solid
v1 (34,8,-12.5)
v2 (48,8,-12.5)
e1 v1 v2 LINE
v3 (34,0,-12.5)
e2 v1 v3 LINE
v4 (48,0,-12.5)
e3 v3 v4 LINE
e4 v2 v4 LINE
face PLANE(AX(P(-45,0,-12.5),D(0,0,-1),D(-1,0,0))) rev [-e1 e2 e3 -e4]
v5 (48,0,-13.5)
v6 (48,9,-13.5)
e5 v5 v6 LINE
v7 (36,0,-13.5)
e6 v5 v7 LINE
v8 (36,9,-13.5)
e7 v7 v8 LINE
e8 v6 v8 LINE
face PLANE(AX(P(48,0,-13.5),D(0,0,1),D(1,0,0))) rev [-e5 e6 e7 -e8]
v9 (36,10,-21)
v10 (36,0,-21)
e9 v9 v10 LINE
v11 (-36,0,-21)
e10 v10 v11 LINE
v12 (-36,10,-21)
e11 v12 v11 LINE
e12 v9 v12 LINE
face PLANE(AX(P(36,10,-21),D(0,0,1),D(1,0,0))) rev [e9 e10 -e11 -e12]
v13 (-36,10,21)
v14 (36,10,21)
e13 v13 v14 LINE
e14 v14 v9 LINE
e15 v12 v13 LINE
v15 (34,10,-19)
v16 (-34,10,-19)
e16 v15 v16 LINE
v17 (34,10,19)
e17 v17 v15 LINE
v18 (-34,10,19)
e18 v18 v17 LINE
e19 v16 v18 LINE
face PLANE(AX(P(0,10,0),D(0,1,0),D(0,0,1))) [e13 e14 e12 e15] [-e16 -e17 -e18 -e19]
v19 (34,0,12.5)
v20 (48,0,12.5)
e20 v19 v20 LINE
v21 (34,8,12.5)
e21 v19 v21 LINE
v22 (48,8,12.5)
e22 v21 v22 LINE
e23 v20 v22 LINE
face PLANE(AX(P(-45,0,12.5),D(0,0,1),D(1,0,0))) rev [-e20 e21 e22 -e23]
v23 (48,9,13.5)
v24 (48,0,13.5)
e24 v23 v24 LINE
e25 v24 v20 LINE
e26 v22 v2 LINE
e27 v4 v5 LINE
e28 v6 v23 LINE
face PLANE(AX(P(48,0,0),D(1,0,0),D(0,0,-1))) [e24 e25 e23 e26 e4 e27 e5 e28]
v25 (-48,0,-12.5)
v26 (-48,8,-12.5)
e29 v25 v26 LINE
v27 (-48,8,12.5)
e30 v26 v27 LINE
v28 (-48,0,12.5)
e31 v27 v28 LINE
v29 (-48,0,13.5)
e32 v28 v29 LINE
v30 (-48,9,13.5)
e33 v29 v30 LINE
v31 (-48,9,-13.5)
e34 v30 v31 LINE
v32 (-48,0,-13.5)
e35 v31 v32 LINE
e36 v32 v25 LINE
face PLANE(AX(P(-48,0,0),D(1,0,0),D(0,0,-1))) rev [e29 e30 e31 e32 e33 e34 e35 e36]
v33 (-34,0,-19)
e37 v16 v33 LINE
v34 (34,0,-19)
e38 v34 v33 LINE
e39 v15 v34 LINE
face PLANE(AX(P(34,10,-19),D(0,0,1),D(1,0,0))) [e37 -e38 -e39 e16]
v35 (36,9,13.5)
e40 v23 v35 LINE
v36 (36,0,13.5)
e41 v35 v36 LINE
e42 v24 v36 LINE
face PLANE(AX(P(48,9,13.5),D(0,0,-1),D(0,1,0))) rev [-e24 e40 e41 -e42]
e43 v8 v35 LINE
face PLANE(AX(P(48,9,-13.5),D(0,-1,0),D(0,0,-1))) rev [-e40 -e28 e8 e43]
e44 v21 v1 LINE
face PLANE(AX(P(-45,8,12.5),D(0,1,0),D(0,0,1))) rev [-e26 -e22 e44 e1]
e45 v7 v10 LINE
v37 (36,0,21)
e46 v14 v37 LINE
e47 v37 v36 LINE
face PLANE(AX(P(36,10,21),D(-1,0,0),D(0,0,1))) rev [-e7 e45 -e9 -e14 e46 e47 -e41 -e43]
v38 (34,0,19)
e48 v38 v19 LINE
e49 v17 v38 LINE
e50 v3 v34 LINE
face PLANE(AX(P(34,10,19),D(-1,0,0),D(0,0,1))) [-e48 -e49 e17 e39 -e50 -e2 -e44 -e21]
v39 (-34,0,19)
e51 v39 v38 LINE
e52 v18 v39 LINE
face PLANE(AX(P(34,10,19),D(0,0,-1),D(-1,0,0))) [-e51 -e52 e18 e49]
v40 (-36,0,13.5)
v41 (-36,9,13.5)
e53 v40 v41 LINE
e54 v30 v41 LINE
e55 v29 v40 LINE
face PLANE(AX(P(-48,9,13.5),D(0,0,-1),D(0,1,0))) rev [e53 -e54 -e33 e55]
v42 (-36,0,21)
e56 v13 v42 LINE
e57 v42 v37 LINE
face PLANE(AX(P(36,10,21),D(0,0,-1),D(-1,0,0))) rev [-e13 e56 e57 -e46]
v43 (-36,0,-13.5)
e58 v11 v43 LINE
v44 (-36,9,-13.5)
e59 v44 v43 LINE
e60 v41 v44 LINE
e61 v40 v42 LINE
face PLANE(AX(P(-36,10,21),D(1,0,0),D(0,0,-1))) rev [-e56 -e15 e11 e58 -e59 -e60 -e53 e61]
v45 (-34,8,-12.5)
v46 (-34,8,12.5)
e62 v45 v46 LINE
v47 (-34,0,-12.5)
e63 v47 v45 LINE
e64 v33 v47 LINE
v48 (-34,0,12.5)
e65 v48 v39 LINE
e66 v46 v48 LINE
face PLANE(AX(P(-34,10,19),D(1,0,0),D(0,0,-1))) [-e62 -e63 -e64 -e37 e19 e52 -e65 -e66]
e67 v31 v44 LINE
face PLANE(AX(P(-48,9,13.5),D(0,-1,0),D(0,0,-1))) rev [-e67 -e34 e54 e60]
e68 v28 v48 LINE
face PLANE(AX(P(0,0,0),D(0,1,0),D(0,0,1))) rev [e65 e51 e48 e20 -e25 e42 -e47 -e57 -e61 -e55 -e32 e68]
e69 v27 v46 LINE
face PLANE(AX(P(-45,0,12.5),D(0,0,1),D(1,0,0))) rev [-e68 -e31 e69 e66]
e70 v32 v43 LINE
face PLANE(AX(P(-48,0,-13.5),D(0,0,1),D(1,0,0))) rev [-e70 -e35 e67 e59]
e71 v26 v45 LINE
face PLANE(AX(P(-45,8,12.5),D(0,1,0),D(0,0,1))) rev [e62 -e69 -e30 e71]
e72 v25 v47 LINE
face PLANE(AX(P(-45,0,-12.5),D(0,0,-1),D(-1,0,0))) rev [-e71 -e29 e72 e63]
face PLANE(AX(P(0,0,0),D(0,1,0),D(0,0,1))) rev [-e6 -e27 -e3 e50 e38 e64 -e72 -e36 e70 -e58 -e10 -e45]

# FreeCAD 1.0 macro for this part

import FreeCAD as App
import Part
import Sketcher

V = App.Vector


def add_polygon(sketch, points):
    """Adds a closed chain of lines whose ends are joined by coincident constraints."""
    first, n = sketch.GeometryCount, len(points)
    for a, b in zip(points, points[1:] + points[:1]):
        sketch.addGeometry(Part.LineSegment(App.Vector(*a, 0), App.Vector(*b, 0)), False)
    for i in range(n):
        sketch.addConstraint(Sketcher.Constraint("Coincident", first + i, 2, first + (i + 1) % n, 1))

doc = App.newDocument("Part")
body = doc.addObject("PartDesign::Body", "Body")

sketch1 = body.newObject("Sketcher::SketchObject", "Sketch")
sketch1.AttachmentSupport = (doc.getObject("XZ_Plane"), [""])
sketch1.MapMode = "FlatFace"
add_polygon(sketch1, [(-36, -21), (-36, 21), (36, 21), (36, -21)])
add_polygon(sketch1, [(34, 19), (-34, 19), (-34, -19), (34, -19)])
sketch1.addConstraint([
    Sketcher.Constraint("Vertical", 0),
    Sketcher.Constraint("Horizontal", 1),
    Sketcher.Constraint("Vertical", 2),
    Sketcher.Constraint("Horizontal", 3),
    Sketcher.Constraint("Horizontal", 4),
    Sketcher.Constraint("Vertical", 5),
    Sketcher.Constraint("Horizontal", 6),
    Sketcher.Constraint("Vertical", 7),
    Sketcher.Constraint("Symmetric", 0, 2, 2, 2, -1, 1),
    Sketcher.Constraint("Symmetric", 4, 2, 6, 2, -1, 1),
    Sketcher.Constraint("DistanceX", 1, 1, 1, 2, 72.0),
    Sketcher.Constraint("DistanceX", 4, 2, 4, 1, 68.0),
    Sketcher.Constraint("DistanceY", 0, 1, 0, 2, 42.0),
    Sketcher.Constraint("DistanceY", 5, 2, 5, 1, 38.0),
])
pad1 = body.newObject("PartDesign::Pad", "Pad")
pad1.Profile = sketch1
pad1.Length = 10
pad1.Reversed = True

sketch2 = body.newObject("Sketcher::SketchObject", "Sketch001")
sketch2.AttachmentSupport = (doc.getObject("YZ_Plane"), [""])
sketch2.MapMode = "FlatFace"
sketch2.AttachmentOffset = App.Placement(V(0, 0, 36), App.Rotation())
add_polygon(sketch2, [(8, 12), (0, 12), (0, -12), (8, -12)])
sketch2.addConstraint([
    Sketcher.Constraint("Horizontal", 0),
    Sketcher.Constraint("Vertical", 1),
    Sketcher.Constraint("Horizontal", 2),
    Sketcher.Constraint("Vertical", 3),
    Sketcher.Constraint("Symmetric", 0, 2, 1, 2, -1, 1),
    Sketcher.Constraint("DistanceX", 0, 2, 0, 1, 8.0),
    Sketcher.Constraint("DistanceY", 1, 2, 1, 1, 25.0),
])
pocket1 = body.newObject("PartDesign::Pocket", "Pocket")
pocket1.Profile = sketch2
pocket1.Length = 81

sketch3 = body.newObject("Sketcher::SketchObject", "Sketch002")
sketch3.AttachmentSupport = (doc.getObject("YZ_Plane"), [""])
sketch3.MapMode = "FlatFace"
sketch3.AttachmentOffset = App.Placement(V(0, 0, 36), App.Rotation())
add_polygon(sketch3, [(8, -12.5), (0, -12.5), (0, -13.5), (9, -13.5), (9, 13.5), (0, 13.5), (0, 12.5), (8, 12.5)])
sketch3.addConstraint([
    Sketcher.Constraint("Horizontal", 0),
    Sketcher.Constraint("Vertical", 1),
    Sketcher.Constraint("Horizontal", 2),
    Sketcher.Constraint("Vertical", 3),
    Sketcher.Constraint("Horizontal", 4),
    Sketcher.Constraint("Vertical", 5),
    Sketcher.Constraint("Horizontal", 6),
    Sketcher.Constraint("Vertical", 7),
    Sketcher.Constraint("Symmetric", 1, 2, 4, 2, -1, 1),
    Sketcher.Constraint("Symmetric", 0, 2, 5, 2, -1),
    Sketcher.Constraint("DistanceX", 0, 2, 0, 1, 8.0),
    Sketcher.Constraint("DistanceX", 2, 1, 2, 2, 9.0),
    Sketcher.Constraint("DistanceY", 1, 2, 1, 1, 1.0),
    Sketcher.Constraint("DistanceY", 3, 1, 3, 2, 27.0),
])
pad2 = body.newObject("PartDesign::Pad", "Pad001")
pad2.Profile = sketch3
pad2.Length = 12

sketch4 = body.newObject("Sketcher::SketchObject", "Sketch003")
sketch4.AttachmentSupport = (doc.getObject("YZ_Plane"), [""])
sketch4.MapMode = "FlatFace"
sketch4.AttachmentOffset = App.Placement(V(0, 0, -36), App.Rotation())
add_polygon(sketch4, [(8, 12.5), (0, 12.5), (0, 13.5), (9, 13.5), (9, -13.5), (0, -13.5), (0, -12.5), (8, -12.5)])
sketch4.addConstraint([
    Sketcher.Constraint("Horizontal", 0),
    Sketcher.Constraint("Vertical", 1),
    Sketcher.Constraint("Horizontal", 2),
    Sketcher.Constraint("Vertical", 3),
    Sketcher.Constraint("Horizontal", 4),
    Sketcher.Constraint("Vertical", 5),
    Sketcher.Constraint("Horizontal", 6),
    Sketcher.Constraint("Vertical", 7),
    Sketcher.Constraint("Symmetric", 1, 2, 4, 2, -1, 1),
    Sketcher.Constraint("Symmetric", 0, 2, 5, 2, -1),
    Sketcher.Constraint("DistanceX", 0, 2, 0, 1, 8.0),
    Sketcher.Constraint("DistanceX", 2, 1, 2, 2, 9.0),
    Sketcher.Constraint("DistanceY", 1, 1, 1, 2, 1.0),
    Sketcher.Constraint("DistanceY", 3, 2, 3, 1, 27.0),
])
pad3 = body.newObject("PartDesign::Pad", "Pad002")
pad3.Profile = sketch4
pad3.Length = 12
pad3.Reversed = True

doc.recompute()
